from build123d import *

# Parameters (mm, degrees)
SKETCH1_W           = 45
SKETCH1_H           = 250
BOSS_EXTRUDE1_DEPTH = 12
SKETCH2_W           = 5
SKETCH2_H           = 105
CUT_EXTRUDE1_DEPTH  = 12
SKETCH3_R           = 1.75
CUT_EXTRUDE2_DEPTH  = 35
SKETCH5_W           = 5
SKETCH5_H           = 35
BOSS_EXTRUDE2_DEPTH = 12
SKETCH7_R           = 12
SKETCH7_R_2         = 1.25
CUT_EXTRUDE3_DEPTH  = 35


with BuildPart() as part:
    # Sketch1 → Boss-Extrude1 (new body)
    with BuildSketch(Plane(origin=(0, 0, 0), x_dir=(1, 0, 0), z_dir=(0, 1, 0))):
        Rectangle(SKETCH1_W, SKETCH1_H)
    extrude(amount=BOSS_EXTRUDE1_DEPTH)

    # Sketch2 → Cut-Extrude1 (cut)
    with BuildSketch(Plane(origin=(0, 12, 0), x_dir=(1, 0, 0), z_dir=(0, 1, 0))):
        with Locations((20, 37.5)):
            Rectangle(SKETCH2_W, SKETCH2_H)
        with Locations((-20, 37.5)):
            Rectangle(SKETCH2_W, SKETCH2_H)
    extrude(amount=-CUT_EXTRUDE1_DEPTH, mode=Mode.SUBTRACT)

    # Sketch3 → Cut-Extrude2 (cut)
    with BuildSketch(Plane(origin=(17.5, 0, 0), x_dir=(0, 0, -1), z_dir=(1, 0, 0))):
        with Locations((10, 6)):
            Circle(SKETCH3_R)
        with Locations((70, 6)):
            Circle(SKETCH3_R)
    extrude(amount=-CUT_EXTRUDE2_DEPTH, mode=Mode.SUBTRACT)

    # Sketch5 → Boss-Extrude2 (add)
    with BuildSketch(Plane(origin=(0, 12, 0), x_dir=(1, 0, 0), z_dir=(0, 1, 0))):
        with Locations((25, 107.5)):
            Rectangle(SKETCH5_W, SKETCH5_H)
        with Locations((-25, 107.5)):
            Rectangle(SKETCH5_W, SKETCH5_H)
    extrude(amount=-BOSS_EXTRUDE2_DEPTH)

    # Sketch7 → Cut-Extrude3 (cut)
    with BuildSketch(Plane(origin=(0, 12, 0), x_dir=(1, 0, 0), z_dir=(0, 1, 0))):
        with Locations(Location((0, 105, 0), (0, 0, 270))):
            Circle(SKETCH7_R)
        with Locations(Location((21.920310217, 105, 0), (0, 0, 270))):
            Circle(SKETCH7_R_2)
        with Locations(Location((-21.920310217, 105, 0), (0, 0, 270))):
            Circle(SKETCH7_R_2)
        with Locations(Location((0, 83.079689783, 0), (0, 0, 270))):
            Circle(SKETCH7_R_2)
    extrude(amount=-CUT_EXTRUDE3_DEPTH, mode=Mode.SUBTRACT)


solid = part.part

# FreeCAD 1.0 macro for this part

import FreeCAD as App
import Part
import Sketcher
Q = App.Units.Quantity


def add_polygon(sketch, points):
    """Adds a closed chain of lines whose ends are joined by coincident constraints."""
    first, n = sketch.GeometryCount, len(points)
    for a, b in zip(points, points[1:] + points[:1]):
        sketch.addGeometry(Part.LineSegment(App.Vector(*a, 0), App.Vector(*b, 0)), False)
    for i in range(n):
        sketch.addConstraint(Sketcher.Constraint("Coincident", first + i, 2, first + (i + 1) % n, 1))

doc = App.newDocument("Part")
params = doc.addObject("Spreadsheet::Sheet", "Params")
for row, (alias, value) in enumerate([
    ("sketch1_width", "45 mm"),
    ("sketch1_height", "250 mm"),
    ("pad1_length", "12 mm"),
    ("sketch2_width", "5 mm"),
    ("sketch2_height", "105 mm"),
    ("pocket1_length", "12 mm"),
    ("sketch3_diameter", "3.5 mm"),
    ("pocket2_length", "35 mm"),
    ("sketch4_width", "5 mm"),
    ("sketch4_height", "35 mm"),
    ("pad2_length", "12 mm"),
    ("sketch5_diameter", "24 mm"),
    ("sketch5_diameter2", "2.5 mm"),
    ("pocket3_length", "35 mm"),
], start=1):
    params.set(f"A{row}", alias)
    params.set(f"B{row}", "=" + value)
    params.setAlias(f"B{row}", alias)

body = doc.addObject("PartDesign::Body", "Body")

sketch1 = doc.addObject("Sketcher::SketchObject", "Sketch")
body.addObject(sketch1)
sketch1.AttachmentSupport = (doc.XZ_Plane, [""])
sketch1.MapMode = "FlatFace"
add_polygon(sketch1, [(-22.5, -125), (-22.5, 125), (22.5, 125), (22.5, -125)])
sketch1.addConstraint(Sketcher.Constraint("Vertical", 0))
sketch1.addConstraint(Sketcher.Constraint("Horizontal", 1))
sketch1.addConstraint(Sketcher.Constraint("Vertical", 2))
sketch1.addConstraint(Sketcher.Constraint("Horizontal", 3))
sketch1.addConstraint(Sketcher.Constraint("Symmetric", 0, 2, 2, 2, -1, 1))
sketch1.addConstraint(Sketcher.Constraint("DistanceX", 1, 1, 1, 2, Q("45 mm")))
sketch1.addConstraint(Sketcher.Constraint("DistanceY", 0, 1, 0, 2, Q("250 mm")))
sketch1.setExpression("Constraints[9]", "Params.sketch1_width")
sketch1.setExpression("Constraints[10]", "Params.sketch1_height")
pad1 = doc.addObject("PartDesign::Pad", "Pad")
body.addObject(pad1)
pad1.Profile = sketch1
pad1.setExpression("Length", "Params.pad1_length")
pad1.Reversed = True

sketch2 = doc.addObject("Sketcher::SketchObject", "Sketch001")
body.addObject(sketch2)
sketch2.AttachmentSupport = (doc.XZ_Plane, [""])
sketch2.MapMode = "FlatFace"
sketch2.AttachmentOffset = App.Placement(App.Vector(0, 0, -12), App.Rotation())
add_polygon(sketch2, [(17.5, -90), (17.5, 15), (22.5, 15), (22.5, -90)])
add_polygon(sketch2, [(-22.5, -90), (-22.5, 15), (-17.5, 15), (-17.5, -90)])
sketch2.addConstraint(Sketcher.Constraint("Vertical", 0))
sketch2.addConstraint(Sketcher.Constraint("Horizontal", 1))
sketch2.addConstraint(Sketcher.Constraint("Vertical", 2))
sketch2.addConstraint(Sketcher.Constraint("Horizontal", 3))
sketch2.addConstraint(Sketcher.Constraint("Vertical", 4))
sketch2.addConstraint(Sketcher.Constraint("Horizontal", 5))
sketch2.addConstraint(Sketcher.Constraint("Vertical", 6))
sketch2.addConstraint(Sketcher.Constraint("Horizontal", 7))
sketch2.addConstraint(Sketcher.Constraint("Symmetric", 1, 2, 4, 2, -2))
sketch2.addConstraint(Sketcher.Constraint("Symmetric", 3, 2, 6, 2, -2))
sketch2.addConstraint(Sketcher.Constraint("DistanceX", 1, 1, 1, 2, Q("5 mm")))
sketch2.addConstraint(Sketcher.Constraint("DistanceY", 0, 1, 0, 2, Q("105 mm")))
sketch2.addConstraint(Sketcher.Constraint("DistanceY", -1, 1, 0, 2, Q("15 mm")))
sketch2.addConstraint(Sketcher.Constraint("DistanceX", 4, 2, 0, 2, Q("40 mm")))
sketch2.setExpression("Constraints[18]", "Params.sketch2_width")
sketch2.setExpression("Constraints[19]", "Params.sketch2_height")
pocket1 = doc.addObject("PartDesign::Pocket", "Pocket")
body.addObject(pocket1)
pocket1.Profile = sketch2
pocket1.setExpression("Length", "Params.pocket1_length")
pocket1.Reversed = True

sketch3 = doc.addObject("Sketcher::SketchObject", "Sketch002")
body.addObject(sketch3)
sketch3.AttachmentSupport = (doc.YZ_Plane, [""])
sketch3.MapMode = "FlatFace"
sketch3.AttachmentOffset = App.Placement(App.Vector(0, 0, 17.5), App.Rotation())
sketch3.addGeometry(Part.Circle(App.Vector(6, -10, 0), App.Vector(0, 0, 1), 1.75), False)
sketch3.addGeometry(Part.Circle(App.Vector(6, -70, 0), App.Vector(0, 0, 1), 1.75), False)
sketch3.addConstraint(Sketcher.Constraint("Equal", 0, 1))
sketch3.addConstraint(Sketcher.Constraint("Vertical", 0, 3, 1, 3))
sketch3.addConstraint(Sketcher.Constraint("Diameter", 0, Q("3.5 mm")))
sketch3.addConstraint(Sketcher.Constraint("DistanceX", -1, 1, 0, 3, Q("6 mm")))
sketch3.addConstraint(Sketcher.Constraint("DistanceY", 0, 3, -1, 1, Q("10 mm")))
sketch3.addConstraint(Sketcher.Constraint("DistanceY", 1, 3, -1, 1, Q("70 mm")))
sketch3.setExpression("Constraints[2]", "Params.sketch3_diameter")
pocket2 = doc.addObject("PartDesign::Pocket", "Pocket001")
body.addObject(pocket2)
pocket2.Profile = sketch3
pocket2.setExpression("Length", "Params.pocket2_length")

sketch4 = doc.addObject("Sketcher::SketchObject", "Sketch003")
body.addObject(sketch4)
sketch4.AttachmentSupport = (doc.XZ_Plane, [""])
sketch4.MapMode = "FlatFace"
sketch4.AttachmentOffset = App.Placement(App.Vector(0, 0, -12), App.Rotation())
add_polygon(sketch4, [(22.5, -125), (22.5, -90), (27.5, -90), (27.5, -125)])
add_polygon(sketch4, [(-27.5, -125), (-27.5, -90), (-22.5, -90), (-22.5, -125)])
sketch4.addConstraint(Sketcher.Constraint("Vertical", 0))
sketch4.addConstraint(Sketcher.Constraint("Horizontal", 1))
sketch4.addConstraint(Sketcher.Constraint("Vertical", 2))
sketch4.addConstraint(Sketcher.Constraint("Horizontal", 3))
sketch4.addConstraint(Sketcher.Constraint("Vertical", 4))
sketch4.addConstraint(Sketcher.Constraint("Horizontal", 5))
sketch4.addConstraint(Sketcher.Constraint("Vertical", 6))
sketch4.addConstraint(Sketcher.Constraint("Horizontal", 7))
sketch4.addConstraint(Sketcher.Constraint("Symmetric", 1, 2, 4, 2, -2))
sketch4.addConstraint(Sketcher.Constraint("Symmetric", 3, 2, 6, 2, -2))
sketch4.addConstraint(Sketcher.Constraint("DistanceX", 1, 1, 1, 2, Q("5 mm")))
sketch4.addConstraint(Sketcher.Constraint("DistanceY", 0, 1, 0, 2, Q("35 mm")))
sketch4.addConstraint(Sketcher.Constraint("DistanceY", 0, 2, -1, 1, Q("90 mm")))
sketch4.addConstraint(Sketcher.Constraint("DistanceX", 4, 2, 0, 2, Q("50 mm")))
sketch4.setExpression("Constraints[18]", "Params.sketch4_width")
sketch4.setExpression("Constraints[19]", "Params.sketch4_height")
pad2 = doc.addObject("PartDesign::Pad", "Pad001")
body.addObject(pad2)
pad2.Profile = sketch4
pad2.setExpression("Length", "Params.pad2_length")

sketch5 = doc.addObject("Sketcher::SketchObject", "Sketch004")
body.addObject(sketch5)
sketch5.AttachmentSupport = (doc.XZ_Plane, [""])
sketch5.MapMode = "FlatFace"
sketch5.AttachmentOffset = App.Placement(App.Vector(0, 0, -12), App.Rotation())
sketch5.addGeometry(Part.Circle(App.Vector(0, -105, 0), App.Vector(0, 0, 1), 12), False)
sketch5.addGeometry(Part.Circle(App.Vector(21.92031, -105, 0), App.Vector(0, 0, 1), 1.25), False)
sketch5.addGeometry(Part.Circle(App.Vector(-21.92031, -105, 0), App.Vector(0, 0, 1), 1.25), False)
sketch5.addGeometry(Part.Circle(App.Vector(0, -83.07969, 0), App.Vector(0, 0, 1), 1.25), False)
sketch5.addConstraint(Sketcher.Constraint("Equal", 1, 2))
sketch5.addConstraint(Sketcher.Constraint("Equal", 2, 3))
sketch5.addConstraint(Sketcher.Constraint("Symmetric", 1, 3, 2, 3, -2))
sketch5.addConstraint(Sketcher.Constraint("PointOnObject", 0, 3, -2))
sketch5.addConstraint(Sketcher.Constraint("PointOnObject", 3, 3, -2))
sketch5.addConstraint(Sketcher.Constraint("Horizontal", 0, 3, 1, 3))
sketch5.addConstraint(Sketcher.Constraint("Diameter", 0, Q("24 mm")))
sketch5.addConstraint(Sketcher.Constraint("Diameter", 1, Q("2.5 mm")))
sketch5.addConstraint(Sketcher.Constraint("DistanceY", 0, 3, -1, 1, Q("105 mm")))
sketch5.addConstraint(Sketcher.Constraint("DistanceX", -1, 1, 1, 3, Q("21.92031 mm")))
sketch5.addConstraint(Sketcher.Constraint("DistanceY", 3, 3, -1, 1, Q("83.07969 mm")))
sketch5.setExpression("Constraints[6]", "Params.sketch5_diameter")
sketch5.setExpression("Constraints[7]", "Params.sketch5_diameter2")
pocket3 = doc.addObject("PartDesign::Pocket", "Pocket002")
body.addObject(pocket3)
pocket3.Profile = sketch5
pocket3.setExpression("Length", "Params.pocket3_length")
pocket3.Reversed = True

doc.recompute()
